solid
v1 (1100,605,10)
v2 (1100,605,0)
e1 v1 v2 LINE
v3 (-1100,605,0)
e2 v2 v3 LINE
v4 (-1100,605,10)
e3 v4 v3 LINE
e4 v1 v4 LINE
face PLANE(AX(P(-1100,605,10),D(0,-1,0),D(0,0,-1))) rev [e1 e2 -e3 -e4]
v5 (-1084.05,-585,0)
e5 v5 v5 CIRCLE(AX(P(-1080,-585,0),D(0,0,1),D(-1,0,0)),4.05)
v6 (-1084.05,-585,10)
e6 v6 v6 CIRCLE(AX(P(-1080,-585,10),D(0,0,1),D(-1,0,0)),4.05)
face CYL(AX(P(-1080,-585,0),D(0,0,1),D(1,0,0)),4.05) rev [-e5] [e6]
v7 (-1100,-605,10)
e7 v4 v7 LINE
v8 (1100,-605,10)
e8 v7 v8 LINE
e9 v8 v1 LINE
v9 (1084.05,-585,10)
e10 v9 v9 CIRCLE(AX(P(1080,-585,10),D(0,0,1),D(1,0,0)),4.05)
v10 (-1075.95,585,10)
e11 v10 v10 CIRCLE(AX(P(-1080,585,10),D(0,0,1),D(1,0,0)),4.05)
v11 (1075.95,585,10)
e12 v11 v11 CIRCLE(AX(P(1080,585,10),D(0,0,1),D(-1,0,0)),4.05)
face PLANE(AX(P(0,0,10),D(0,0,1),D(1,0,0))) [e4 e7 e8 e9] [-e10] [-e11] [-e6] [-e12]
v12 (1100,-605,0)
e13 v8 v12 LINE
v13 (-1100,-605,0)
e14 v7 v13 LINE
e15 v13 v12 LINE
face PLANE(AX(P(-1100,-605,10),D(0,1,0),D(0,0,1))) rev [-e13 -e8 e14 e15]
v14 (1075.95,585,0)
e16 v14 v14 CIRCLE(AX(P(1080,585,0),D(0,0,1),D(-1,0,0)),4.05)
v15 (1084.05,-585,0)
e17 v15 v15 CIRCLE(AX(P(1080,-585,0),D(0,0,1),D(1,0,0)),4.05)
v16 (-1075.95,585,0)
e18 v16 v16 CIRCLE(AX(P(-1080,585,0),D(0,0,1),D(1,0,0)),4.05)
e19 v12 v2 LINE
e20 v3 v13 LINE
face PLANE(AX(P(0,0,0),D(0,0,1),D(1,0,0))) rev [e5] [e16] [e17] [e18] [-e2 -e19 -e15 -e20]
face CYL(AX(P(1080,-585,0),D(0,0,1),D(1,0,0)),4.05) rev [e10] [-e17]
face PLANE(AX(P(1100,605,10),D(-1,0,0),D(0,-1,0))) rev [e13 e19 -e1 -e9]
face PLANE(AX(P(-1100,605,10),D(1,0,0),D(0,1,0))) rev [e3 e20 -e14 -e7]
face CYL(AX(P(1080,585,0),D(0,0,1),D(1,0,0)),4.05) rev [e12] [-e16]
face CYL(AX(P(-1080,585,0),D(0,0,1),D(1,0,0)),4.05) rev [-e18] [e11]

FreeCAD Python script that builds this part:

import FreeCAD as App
import Part
import Sketcher

V = App.Vector
Q = App.Units.Quantity


def add_polygon(sketch, points):
    """Adds a closed chain of lines whose ends are joined by coincident constraints."""
    first, n = sketch.GeometryCount, len(points)
    for a, b in zip(points, points[1:] + points[:1]):
        sketch.addGeometry(Part.LineSegment(App.Vector(*a, 0), App.Vector(*b, 0)), False)
    for i in range(n):
        sketch.addConstraint(Sketcher.Constraint("Coincident", first + i, 2, first + (i + 1) % n, 1))

doc = App.newDocument("Part")
body = doc.addObject("PartDesign::Body", "Body")

# Sketch on XY plane
sketch1 = body.newObject("Sketcher::SketchObject", "Sketch")
sketch1.AttachmentSupport = (doc.getObject("XY_Plane"), [""])
sketch1.MapMode = "FlatFace"
add_polygon(sketch1, [(-1100, 605), (-1100, -605), (1100, -605), (1100, 605)])  # lines 0-3
sketch1.addConstraint(Sketcher.Constraint("Vertical", 0))
sketch1.addConstraint(Sketcher.Constraint("Horizontal", 1))
sketch1.addConstraint(Sketcher.Constraint("Vertical", 2))
sketch1.addConstraint(Sketcher.Constraint("Horizontal", 3))
sketch1.addConstraint(Sketcher.Constraint("Symmetric", 0, 2, 2, 2, -1, 1))
sketch1.addConstraint(Sketcher.Constraint("DistanceX", 1, 1, 1, 2, Q("2200 mm")))
sketch1.addConstraint(Sketcher.Constraint("DistanceY", 0, 2, 0, 1, Q("1210 mm")))
pad1 = body.newObject("PartDesign::Pad", "Pad")
pad1.Profile = sketch1
pad1.Length = 10

# Sketch on XY plane
sketch2 = body.newObject("Sketcher::SketchObject", "Sketch001")
sketch2.AttachmentSupport = (doc.getObject("XY_Plane"), [""])
sketch2.MapMode = "FlatFace"
sketch2.AttachmentOffset = App.Placement(V(0, 0, 10), App.Rotation())
sketch2.addGeometry(Part.Circle(V(-1080, 585, 0), V(0, 0, 1), 4.05), False)
sketch2.addGeometry(Part.Circle(V(1080, 585, 0), V(0, 0, 1), 4.05), False)
sketch2.addGeometry(Part.Circle(V(1080, -585, 0), V(0, 0, 1), 4.05), False)
sketch2.addGeometry(Part.Circle(V(-1080, -585, 0), V(0, 0, 1), 4.05), False)
sketch2.addConstraint(Sketcher.Constraint("Equal", 0, 1))
sketch2.addConstraint(Sketcher.Constraint("Equal", 1, 2))
sketch2.addConstraint(Sketcher.Constraint("Equal", 2, 3))
sketch2.addConstraint(Sketcher.Constraint("Symmetric", 0, 3, 2, 3, -1, 1))
sketch2.addConstraint(Sketcher.Constraint("Symmetric", 1, 3, 3, 3, -1, 1))
sketch2.addConstraint(Sketcher.Constraint("Symmetric", 0, 3, 1, 3, -2))
sketch2.addConstraint(Sketcher.Constraint("Diameter", 0, Q("8.1 mm")))
sketch2.addConstraint(Sketcher.Constraint("DistanceX", 0, 3, -1, 1, Q("1080 mm")))
sketch2.addConstraint(Sketcher.Constraint("DistanceY", -1, 1, 0, 3, Q("585 mm")))
pocket1 = body.newObject("PartDesign::Pocket", "Pocket")
pocket1.Profile = sketch2
pocket1.Length = 10

doc.recompute()
